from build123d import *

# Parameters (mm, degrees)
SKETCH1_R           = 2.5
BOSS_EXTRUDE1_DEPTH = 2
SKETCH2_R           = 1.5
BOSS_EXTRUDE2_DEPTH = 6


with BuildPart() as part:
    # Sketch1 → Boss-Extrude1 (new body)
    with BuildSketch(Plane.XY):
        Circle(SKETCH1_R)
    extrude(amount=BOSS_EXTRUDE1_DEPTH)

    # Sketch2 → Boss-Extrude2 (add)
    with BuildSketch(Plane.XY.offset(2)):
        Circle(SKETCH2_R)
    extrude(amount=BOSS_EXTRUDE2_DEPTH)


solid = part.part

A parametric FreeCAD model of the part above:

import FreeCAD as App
import Part
import Sketcher
from FreeCAD import Vector
Q = App.Units.Quantity

doc = App.newDocument("Part")
body = doc.addObject("PartDesign::Body", "Body")

sketch1 = doc.addObject("Sketcher::SketchObject", "Sketch")
body.addObject(sketch1)
sketch1.AttachmentSupport = (doc.XY_Plane, [""])
sketch1.MapMode = "FlatFace"
sketch1.addGeometry(Part.Circle(Vector(0, 0, 0), Vector(0, 0, 1), 2.5), False)
sketch1.addConstraint(Sketcher.Constraint("Coincident", 0, 3, -1, 1))
sketch1.addConstraint(Sketcher.Constraint("Diameter", 0, Q("5 mm")))
pad1 = doc.addObject("PartDesign::Pad", "Pad")
body.addObject(pad1)
pad1.Profile = sketch1
pad1.Length = 2

sketch2 = doc.addObject("Sketcher::SketchObject", "Sketch001")
body.addObject(sketch2)
sketch2.AttachmentSupport = (doc.XY_Plane, [""])
sketch2.MapMode = "FlatFace"
sketch2.AttachmentOffset = App.Placement(Vector(0, 0, 2), App.Rotation())
sketch2.addGeometry(Part.Circle(Vector(0, 0, 0), Vector(0, 0, 1), 1.5), False)
sketch2.addConstraint(Sketcher.Constraint("Coincident", 0, 3, -1, 1))
sketch2.addConstraint(Sketcher.Constraint("Diameter", 0, Q("3 mm")))
pad2 = doc.addObject("PartDesign::Pad", "Pad001")
body.addObject(pad2)
pad2.Profile = sketch2
pad2.Length = 6

doc.recompute()
